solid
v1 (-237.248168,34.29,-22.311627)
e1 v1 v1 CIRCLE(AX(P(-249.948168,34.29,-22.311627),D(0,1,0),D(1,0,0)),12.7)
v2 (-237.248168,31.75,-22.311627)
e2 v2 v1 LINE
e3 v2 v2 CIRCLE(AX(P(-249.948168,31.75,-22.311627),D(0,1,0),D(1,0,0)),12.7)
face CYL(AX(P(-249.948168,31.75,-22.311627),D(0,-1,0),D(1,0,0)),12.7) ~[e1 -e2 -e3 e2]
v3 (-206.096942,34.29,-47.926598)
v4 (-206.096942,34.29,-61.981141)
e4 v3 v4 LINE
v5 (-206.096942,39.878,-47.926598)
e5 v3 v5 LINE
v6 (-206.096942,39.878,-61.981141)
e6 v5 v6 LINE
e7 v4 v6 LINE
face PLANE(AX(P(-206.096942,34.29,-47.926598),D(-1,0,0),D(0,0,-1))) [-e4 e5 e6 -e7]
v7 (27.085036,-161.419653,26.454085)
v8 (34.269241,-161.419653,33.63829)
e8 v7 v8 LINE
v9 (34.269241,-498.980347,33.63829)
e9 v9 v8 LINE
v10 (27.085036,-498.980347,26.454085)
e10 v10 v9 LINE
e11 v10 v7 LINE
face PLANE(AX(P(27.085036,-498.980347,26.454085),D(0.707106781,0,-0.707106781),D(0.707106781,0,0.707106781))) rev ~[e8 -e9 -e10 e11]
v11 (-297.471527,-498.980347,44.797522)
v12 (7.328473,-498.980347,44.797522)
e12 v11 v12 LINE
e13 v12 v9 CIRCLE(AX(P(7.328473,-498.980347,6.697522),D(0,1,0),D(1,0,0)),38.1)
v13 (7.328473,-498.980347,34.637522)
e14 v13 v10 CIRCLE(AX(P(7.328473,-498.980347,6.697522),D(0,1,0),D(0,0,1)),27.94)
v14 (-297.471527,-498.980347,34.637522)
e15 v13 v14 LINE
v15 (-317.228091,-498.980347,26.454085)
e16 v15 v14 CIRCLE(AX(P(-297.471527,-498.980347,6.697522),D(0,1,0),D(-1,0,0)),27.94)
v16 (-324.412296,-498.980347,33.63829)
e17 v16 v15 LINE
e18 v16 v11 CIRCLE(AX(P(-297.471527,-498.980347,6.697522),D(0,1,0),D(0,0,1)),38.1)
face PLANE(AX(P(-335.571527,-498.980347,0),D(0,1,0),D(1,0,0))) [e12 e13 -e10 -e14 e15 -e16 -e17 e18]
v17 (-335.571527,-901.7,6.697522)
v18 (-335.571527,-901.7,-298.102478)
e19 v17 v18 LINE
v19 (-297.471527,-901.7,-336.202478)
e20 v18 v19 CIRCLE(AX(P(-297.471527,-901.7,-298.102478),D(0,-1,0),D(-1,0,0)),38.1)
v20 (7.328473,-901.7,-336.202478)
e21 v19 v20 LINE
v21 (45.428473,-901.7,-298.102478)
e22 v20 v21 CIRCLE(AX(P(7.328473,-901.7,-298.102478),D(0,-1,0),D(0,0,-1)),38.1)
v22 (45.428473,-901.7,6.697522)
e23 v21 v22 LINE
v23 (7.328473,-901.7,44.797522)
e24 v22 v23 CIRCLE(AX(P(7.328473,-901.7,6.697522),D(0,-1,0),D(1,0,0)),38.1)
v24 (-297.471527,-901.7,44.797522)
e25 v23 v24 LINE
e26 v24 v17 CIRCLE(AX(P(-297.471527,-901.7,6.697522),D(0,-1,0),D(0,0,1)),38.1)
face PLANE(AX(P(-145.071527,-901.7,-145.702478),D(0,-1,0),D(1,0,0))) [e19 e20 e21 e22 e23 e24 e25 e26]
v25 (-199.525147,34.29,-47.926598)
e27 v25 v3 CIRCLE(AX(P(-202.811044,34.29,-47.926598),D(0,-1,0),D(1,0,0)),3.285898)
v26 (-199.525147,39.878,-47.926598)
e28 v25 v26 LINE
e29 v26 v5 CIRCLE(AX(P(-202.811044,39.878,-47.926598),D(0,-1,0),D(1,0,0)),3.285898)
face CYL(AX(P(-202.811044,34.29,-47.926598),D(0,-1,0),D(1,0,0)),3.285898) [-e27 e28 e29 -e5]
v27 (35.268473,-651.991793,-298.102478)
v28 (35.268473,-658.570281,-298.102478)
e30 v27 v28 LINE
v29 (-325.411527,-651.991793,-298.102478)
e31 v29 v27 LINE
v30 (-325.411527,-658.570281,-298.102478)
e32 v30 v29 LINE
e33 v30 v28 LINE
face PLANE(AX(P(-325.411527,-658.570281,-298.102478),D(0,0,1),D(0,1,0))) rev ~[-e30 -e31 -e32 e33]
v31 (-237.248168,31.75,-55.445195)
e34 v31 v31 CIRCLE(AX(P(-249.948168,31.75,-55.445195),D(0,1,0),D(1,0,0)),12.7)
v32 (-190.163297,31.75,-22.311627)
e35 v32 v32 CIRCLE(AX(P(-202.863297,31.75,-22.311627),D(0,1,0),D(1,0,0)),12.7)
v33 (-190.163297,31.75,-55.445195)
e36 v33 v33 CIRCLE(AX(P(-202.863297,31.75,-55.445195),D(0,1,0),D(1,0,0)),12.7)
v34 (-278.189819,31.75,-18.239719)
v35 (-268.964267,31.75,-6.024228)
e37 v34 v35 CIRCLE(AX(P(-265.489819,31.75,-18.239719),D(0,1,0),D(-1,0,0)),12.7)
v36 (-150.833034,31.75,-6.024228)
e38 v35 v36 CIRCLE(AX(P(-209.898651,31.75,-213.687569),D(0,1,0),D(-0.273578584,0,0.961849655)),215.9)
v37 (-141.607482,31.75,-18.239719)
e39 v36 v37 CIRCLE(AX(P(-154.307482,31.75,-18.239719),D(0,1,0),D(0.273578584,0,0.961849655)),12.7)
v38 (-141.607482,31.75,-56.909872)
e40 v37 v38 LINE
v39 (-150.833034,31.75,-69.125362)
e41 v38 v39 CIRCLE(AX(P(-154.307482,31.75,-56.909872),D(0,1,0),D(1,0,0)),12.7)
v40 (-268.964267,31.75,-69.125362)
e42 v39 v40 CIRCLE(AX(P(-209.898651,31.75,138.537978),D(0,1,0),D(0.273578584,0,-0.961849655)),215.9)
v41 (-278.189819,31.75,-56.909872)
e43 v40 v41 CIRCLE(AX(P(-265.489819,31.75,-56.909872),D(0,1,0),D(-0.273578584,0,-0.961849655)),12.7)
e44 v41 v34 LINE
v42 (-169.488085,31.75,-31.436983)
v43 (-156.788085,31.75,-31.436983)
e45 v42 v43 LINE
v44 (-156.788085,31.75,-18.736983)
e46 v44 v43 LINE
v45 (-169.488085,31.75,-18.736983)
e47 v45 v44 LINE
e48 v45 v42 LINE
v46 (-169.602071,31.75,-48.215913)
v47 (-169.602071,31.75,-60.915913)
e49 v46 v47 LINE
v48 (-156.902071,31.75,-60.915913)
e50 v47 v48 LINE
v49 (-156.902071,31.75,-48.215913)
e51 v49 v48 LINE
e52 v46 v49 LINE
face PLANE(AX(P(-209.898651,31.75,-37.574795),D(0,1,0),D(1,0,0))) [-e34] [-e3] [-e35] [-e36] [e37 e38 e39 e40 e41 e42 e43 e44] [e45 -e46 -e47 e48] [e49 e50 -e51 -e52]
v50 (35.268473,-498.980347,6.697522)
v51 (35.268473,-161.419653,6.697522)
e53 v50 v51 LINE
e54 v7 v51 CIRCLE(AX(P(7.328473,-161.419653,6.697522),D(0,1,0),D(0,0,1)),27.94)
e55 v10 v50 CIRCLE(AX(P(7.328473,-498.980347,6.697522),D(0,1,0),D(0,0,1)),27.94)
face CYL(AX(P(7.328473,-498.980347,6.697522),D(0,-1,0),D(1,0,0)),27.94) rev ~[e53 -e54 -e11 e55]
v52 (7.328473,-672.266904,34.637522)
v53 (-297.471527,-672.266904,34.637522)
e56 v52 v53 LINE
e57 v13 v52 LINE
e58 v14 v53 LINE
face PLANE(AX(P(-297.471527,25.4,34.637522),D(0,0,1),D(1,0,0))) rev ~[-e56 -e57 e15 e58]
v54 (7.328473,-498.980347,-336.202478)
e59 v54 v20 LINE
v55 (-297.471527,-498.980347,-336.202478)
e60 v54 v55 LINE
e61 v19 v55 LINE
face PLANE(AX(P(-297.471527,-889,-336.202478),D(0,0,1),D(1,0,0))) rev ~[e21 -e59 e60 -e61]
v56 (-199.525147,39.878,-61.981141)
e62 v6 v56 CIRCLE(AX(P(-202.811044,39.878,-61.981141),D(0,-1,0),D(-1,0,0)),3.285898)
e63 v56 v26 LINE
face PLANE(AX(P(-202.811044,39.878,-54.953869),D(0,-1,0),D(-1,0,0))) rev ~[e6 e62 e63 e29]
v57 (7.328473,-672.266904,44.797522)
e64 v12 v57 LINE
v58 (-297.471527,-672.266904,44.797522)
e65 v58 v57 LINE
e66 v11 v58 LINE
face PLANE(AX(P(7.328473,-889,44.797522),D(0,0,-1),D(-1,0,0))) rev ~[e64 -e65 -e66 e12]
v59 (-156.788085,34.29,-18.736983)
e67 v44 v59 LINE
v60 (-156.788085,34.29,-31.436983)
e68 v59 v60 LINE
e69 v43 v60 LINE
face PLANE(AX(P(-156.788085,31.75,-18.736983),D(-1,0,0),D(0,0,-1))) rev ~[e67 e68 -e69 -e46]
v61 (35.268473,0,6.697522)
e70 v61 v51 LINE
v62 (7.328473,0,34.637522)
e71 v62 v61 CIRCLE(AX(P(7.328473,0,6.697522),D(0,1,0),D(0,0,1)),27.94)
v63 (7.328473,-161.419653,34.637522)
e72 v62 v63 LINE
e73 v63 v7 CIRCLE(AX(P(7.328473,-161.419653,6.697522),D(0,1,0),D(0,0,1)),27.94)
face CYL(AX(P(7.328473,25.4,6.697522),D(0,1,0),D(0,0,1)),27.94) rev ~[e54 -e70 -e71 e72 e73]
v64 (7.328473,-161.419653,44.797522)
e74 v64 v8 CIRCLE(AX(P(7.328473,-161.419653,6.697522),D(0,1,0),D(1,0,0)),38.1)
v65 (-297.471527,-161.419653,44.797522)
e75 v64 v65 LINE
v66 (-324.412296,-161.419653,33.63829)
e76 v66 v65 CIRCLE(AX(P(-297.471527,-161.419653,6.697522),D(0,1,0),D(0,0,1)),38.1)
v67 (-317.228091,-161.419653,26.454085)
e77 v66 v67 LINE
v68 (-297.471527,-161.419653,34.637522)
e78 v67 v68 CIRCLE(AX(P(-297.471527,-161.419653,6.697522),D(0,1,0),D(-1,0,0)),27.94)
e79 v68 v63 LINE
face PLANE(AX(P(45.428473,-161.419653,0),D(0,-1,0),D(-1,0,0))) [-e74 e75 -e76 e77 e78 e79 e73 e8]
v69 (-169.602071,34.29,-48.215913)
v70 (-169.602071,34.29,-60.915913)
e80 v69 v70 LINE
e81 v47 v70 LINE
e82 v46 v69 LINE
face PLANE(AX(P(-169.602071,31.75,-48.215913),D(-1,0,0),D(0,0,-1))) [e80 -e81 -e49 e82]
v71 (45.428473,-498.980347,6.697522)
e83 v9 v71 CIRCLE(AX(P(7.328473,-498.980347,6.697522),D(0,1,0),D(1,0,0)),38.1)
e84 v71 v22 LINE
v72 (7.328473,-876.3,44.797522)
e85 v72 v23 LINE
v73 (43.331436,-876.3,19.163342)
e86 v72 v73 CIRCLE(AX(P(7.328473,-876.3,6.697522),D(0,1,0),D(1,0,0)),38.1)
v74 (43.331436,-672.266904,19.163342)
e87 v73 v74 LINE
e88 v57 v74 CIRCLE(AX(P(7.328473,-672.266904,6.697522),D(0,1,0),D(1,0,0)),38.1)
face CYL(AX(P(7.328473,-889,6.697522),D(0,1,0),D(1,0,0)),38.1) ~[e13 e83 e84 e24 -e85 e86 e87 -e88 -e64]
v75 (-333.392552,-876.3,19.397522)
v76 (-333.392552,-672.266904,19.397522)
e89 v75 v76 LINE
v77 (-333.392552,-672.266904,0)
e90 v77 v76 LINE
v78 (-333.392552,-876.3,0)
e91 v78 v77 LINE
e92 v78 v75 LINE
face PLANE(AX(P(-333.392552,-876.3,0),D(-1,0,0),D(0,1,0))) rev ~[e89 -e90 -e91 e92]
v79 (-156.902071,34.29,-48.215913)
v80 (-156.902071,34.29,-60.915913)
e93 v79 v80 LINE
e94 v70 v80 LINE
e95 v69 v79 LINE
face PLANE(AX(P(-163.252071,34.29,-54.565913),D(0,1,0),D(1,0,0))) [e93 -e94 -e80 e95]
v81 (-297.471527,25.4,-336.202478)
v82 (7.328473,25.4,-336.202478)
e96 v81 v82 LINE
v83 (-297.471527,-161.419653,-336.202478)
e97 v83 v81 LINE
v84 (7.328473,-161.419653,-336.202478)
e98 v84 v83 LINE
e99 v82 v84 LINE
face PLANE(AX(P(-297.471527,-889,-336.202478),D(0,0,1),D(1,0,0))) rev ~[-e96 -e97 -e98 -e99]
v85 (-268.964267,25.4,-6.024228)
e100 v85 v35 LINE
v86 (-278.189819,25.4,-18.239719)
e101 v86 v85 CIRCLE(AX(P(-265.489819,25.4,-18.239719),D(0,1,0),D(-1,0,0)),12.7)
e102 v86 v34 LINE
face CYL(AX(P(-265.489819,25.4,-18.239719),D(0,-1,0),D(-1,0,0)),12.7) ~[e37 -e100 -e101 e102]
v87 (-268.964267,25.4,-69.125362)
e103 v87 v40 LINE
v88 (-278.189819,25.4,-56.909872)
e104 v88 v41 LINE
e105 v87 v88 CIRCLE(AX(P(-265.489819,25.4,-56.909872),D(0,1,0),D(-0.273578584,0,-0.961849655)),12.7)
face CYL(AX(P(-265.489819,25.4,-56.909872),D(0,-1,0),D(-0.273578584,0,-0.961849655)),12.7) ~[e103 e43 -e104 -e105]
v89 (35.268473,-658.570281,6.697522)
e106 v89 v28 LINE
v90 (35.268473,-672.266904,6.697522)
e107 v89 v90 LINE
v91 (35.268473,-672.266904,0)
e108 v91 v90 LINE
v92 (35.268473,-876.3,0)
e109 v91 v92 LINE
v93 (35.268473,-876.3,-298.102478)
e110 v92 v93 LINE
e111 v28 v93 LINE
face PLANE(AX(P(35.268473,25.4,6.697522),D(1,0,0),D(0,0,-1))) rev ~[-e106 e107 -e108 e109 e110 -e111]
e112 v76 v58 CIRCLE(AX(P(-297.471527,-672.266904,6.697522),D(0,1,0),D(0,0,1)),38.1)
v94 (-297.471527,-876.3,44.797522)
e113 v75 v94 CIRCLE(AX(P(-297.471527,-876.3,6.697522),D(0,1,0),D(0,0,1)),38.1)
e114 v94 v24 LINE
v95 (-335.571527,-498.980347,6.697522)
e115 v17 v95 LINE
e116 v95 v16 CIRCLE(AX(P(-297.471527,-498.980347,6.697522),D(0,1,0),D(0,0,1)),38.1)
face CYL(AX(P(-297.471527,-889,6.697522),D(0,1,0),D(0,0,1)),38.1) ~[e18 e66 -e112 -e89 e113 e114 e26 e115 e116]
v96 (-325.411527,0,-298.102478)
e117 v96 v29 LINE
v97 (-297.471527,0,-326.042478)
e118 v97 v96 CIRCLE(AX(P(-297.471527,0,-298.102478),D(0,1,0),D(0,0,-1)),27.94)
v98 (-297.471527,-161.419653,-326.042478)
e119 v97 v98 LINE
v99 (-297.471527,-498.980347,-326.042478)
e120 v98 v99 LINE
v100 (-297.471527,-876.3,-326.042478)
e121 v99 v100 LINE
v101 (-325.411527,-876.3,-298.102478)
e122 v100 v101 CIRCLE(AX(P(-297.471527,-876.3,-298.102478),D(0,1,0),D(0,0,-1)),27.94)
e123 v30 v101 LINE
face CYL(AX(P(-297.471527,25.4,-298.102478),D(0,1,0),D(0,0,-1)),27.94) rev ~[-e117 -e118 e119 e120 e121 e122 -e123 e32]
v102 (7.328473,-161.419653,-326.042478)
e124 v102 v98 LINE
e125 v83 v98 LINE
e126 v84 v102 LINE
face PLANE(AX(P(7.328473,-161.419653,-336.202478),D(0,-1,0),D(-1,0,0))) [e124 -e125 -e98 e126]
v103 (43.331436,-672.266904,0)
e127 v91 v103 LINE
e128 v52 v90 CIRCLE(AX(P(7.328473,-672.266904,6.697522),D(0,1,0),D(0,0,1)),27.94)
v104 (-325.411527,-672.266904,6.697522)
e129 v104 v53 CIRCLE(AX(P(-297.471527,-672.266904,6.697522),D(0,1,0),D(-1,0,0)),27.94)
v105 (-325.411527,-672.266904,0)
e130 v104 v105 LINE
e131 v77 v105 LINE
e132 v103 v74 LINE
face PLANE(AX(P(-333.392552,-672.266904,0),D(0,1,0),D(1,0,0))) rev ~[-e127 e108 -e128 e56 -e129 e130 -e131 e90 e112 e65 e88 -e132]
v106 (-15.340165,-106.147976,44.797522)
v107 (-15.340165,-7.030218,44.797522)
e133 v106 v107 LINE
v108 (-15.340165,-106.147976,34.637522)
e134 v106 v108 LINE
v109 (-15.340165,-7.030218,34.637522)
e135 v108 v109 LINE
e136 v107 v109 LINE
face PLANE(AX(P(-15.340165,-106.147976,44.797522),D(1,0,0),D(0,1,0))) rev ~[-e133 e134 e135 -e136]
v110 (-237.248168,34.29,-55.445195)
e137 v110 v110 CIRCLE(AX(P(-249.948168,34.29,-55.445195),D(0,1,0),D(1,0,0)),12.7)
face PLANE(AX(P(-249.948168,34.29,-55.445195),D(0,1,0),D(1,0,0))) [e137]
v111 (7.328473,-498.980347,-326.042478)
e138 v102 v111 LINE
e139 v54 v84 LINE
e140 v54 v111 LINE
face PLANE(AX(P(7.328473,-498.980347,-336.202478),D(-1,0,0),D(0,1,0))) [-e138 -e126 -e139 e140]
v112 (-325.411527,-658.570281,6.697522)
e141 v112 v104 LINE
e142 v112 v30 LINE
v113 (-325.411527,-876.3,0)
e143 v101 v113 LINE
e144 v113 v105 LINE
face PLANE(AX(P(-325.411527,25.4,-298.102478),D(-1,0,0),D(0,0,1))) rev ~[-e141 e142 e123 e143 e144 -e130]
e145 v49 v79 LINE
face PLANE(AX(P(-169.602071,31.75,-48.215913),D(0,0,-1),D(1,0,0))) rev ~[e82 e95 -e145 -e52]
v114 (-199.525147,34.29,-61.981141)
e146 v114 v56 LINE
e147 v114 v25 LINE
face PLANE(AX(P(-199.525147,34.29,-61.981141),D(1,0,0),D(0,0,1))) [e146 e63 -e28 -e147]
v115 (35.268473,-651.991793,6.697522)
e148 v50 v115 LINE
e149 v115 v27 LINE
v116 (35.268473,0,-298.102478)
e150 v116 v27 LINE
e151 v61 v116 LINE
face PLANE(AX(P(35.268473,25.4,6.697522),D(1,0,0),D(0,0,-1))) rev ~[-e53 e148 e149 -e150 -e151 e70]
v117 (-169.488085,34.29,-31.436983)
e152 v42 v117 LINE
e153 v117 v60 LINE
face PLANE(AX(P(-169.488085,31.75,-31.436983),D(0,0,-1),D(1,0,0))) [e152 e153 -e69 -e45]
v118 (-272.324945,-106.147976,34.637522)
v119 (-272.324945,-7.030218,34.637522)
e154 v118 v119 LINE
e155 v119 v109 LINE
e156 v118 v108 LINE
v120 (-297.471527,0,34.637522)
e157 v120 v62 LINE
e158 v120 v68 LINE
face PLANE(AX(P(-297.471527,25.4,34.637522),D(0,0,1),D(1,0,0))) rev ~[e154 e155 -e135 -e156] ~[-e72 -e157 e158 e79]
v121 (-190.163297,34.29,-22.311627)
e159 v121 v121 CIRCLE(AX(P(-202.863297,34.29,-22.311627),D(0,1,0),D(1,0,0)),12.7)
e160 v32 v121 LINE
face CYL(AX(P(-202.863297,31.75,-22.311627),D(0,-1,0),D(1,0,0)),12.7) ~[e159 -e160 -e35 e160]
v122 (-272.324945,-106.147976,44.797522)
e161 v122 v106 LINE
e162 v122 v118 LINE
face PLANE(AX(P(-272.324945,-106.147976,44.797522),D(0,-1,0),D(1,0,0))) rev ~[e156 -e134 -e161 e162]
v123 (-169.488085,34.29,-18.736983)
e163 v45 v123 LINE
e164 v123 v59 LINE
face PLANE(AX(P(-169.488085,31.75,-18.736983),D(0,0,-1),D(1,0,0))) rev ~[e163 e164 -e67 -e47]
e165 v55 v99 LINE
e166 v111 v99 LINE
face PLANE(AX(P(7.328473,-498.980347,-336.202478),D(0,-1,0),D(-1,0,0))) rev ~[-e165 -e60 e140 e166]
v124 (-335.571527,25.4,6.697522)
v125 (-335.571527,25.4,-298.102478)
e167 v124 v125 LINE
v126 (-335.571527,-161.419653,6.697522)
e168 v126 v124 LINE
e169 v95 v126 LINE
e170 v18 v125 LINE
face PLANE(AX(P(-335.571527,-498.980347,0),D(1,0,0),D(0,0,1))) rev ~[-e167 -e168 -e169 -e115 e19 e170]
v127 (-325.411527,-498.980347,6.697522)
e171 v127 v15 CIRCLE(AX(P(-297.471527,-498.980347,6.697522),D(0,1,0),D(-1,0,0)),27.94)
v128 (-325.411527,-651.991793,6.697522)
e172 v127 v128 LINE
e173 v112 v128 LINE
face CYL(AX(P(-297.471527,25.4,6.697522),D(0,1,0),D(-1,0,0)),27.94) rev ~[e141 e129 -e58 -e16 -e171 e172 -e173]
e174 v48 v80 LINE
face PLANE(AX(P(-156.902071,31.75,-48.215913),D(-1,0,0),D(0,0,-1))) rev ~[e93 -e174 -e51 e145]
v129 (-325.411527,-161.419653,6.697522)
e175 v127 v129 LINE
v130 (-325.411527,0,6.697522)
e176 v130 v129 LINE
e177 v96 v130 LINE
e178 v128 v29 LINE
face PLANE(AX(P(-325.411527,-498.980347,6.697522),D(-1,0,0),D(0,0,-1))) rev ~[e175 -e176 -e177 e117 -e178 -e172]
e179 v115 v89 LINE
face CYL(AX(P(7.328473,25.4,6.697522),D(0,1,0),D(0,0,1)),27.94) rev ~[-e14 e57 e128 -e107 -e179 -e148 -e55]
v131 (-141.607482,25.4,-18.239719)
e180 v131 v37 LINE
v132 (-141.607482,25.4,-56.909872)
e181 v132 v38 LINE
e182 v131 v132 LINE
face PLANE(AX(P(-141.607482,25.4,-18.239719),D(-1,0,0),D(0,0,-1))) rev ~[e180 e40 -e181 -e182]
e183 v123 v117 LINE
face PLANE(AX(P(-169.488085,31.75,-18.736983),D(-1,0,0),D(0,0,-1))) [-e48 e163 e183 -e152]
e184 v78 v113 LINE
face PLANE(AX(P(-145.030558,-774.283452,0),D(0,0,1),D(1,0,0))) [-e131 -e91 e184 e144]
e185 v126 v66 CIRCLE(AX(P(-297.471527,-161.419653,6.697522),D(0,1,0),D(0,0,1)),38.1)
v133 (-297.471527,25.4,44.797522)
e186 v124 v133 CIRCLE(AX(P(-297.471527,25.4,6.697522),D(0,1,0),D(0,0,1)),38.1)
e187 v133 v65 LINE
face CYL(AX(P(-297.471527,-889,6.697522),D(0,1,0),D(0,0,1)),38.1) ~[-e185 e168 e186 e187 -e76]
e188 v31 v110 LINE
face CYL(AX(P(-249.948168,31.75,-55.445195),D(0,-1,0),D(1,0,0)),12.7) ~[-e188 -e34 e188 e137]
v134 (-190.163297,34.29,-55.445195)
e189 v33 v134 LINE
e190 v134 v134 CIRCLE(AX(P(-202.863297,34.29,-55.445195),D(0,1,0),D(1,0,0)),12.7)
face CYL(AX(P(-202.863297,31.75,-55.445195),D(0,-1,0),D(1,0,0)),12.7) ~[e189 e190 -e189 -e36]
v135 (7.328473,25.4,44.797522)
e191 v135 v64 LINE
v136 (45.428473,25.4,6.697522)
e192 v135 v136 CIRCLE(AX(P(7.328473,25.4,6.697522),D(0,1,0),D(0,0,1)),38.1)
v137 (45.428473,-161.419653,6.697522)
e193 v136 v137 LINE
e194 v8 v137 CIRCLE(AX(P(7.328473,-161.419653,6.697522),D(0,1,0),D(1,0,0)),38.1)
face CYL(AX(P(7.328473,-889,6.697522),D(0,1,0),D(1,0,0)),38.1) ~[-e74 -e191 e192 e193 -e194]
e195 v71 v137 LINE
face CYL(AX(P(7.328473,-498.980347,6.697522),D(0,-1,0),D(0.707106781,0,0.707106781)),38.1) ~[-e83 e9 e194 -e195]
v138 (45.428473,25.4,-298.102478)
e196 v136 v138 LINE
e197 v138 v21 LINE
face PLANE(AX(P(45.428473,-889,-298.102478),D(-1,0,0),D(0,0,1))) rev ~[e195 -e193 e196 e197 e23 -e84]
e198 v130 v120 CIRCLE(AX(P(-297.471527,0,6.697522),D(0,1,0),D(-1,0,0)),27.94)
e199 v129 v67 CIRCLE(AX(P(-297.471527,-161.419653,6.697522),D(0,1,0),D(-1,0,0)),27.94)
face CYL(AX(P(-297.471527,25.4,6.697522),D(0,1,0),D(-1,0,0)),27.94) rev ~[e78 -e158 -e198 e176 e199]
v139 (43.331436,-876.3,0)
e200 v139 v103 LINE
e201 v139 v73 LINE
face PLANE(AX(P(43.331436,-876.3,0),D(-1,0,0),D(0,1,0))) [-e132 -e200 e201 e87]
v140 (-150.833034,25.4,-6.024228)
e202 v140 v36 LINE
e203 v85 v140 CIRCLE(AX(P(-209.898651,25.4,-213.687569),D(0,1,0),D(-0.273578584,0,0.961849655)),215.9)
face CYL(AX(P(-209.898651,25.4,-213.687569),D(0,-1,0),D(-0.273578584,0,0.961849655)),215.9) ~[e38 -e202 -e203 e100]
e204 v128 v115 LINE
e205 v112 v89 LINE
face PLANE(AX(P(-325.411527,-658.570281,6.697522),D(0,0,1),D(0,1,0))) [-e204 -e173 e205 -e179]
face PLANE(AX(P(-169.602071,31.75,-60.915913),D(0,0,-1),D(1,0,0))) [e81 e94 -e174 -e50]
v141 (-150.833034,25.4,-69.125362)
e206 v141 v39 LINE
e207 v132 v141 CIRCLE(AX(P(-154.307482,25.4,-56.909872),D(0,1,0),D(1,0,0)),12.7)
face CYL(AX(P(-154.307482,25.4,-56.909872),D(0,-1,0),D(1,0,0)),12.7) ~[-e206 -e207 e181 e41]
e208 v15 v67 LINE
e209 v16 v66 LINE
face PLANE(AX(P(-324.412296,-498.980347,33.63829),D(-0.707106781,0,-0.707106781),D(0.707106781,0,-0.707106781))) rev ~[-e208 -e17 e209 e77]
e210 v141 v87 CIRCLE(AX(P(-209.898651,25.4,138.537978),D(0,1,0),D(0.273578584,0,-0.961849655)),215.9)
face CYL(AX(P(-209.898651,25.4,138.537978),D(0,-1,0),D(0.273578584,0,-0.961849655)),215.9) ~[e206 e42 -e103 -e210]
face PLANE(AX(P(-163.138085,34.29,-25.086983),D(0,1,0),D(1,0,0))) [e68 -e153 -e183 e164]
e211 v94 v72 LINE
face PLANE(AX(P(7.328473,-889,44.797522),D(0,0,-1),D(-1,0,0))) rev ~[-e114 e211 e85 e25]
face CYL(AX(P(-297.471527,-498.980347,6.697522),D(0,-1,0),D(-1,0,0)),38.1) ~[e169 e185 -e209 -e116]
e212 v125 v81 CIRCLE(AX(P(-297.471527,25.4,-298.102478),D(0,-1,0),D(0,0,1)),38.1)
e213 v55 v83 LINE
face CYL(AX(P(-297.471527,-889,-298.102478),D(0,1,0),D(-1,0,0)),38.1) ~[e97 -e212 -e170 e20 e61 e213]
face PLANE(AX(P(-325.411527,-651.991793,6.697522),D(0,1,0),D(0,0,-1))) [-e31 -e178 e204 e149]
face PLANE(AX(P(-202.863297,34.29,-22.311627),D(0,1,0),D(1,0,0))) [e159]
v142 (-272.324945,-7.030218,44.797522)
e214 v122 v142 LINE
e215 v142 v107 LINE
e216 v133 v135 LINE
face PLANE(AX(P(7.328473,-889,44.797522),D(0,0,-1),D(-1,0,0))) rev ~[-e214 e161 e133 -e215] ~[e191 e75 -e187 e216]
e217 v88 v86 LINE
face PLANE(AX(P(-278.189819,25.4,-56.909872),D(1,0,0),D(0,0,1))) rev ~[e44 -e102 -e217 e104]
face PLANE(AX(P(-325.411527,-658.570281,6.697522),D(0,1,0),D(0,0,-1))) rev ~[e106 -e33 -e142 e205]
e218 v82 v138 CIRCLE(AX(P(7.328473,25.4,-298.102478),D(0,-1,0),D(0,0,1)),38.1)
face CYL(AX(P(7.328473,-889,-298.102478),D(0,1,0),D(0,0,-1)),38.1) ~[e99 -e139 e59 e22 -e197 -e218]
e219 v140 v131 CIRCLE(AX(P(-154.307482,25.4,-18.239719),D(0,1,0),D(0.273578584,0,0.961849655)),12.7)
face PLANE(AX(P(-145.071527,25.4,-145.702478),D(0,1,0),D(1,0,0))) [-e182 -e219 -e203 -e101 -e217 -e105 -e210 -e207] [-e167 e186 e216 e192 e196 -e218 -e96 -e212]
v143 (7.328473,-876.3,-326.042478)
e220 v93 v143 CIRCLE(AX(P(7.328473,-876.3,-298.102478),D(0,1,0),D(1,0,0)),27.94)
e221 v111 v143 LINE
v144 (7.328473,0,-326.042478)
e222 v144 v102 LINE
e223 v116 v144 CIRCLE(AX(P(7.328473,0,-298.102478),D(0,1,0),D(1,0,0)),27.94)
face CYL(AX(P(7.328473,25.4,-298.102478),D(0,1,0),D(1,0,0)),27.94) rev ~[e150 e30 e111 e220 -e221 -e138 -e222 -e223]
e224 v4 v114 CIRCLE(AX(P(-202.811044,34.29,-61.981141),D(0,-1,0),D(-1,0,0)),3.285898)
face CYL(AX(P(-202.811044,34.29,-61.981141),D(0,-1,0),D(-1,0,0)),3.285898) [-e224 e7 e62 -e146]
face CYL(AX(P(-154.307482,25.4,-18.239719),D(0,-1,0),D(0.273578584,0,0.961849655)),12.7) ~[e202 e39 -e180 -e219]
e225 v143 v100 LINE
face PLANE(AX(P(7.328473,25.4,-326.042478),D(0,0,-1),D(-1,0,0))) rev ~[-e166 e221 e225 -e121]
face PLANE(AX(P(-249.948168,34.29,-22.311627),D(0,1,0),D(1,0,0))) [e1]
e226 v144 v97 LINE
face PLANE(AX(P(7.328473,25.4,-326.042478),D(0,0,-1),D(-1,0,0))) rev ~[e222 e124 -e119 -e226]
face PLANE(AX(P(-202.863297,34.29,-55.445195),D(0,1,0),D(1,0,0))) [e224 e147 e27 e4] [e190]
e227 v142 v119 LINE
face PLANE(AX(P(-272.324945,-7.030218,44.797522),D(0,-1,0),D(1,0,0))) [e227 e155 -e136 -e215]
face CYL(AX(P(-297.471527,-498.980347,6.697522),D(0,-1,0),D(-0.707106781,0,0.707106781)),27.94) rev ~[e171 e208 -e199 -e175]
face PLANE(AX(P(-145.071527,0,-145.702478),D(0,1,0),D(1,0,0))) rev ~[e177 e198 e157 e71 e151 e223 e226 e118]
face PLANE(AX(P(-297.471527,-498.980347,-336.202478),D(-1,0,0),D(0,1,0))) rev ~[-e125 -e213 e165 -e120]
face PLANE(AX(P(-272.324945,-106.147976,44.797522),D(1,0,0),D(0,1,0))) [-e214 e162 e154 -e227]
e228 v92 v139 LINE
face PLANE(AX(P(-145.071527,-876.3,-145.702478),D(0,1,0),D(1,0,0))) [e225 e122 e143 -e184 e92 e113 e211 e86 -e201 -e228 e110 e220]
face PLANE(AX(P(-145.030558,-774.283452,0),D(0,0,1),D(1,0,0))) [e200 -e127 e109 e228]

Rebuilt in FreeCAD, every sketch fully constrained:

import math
import FreeCAD as App
import Part
import Sketcher
Q = App.Units.Quantity


def edges_at(feature, points):
    """Names of the edges that pass closest to the given points."""
    edges = feature.Shape.Edges
    near = lambda p: min(range(len(edges)), key=lambda i: edges[i].distToShape(Part.Vertex(*p))[0])
    return sorted({f"Edge{near(p) + 1}" for p in points})


def add_polygon(sketch, points):
    """Adds a closed chain of lines whose ends are joined by coincident constraints."""
    first, n = sketch.GeometryCount, len(points)
    for a, b in zip(points, points[1:] + points[:1]):
        sketch.addGeometry(Part.LineSegment(App.Vector(*a, 0), App.Vector(*b, 0)), False)
    for i in range(n):
        sketch.addConstraint(Sketcher.Constraint("Coincident", first + i, 2, first + (i + 1) % n, 1))

doc = App.newDocument("Part")
body = doc.addObject("PartDesign::Body", "Body")

# Sketch on XZ plane
sketch1 = doc.addObject("Sketcher::SketchObject", "Sketch")
body.addObject(sketch1)
sketch1.AttachmentSupport = (doc.XZ_Plane, [""])
sketch1.MapMode = "FlatFace"
add_polygon(sketch1, [(-336, -336), (-336, 45), (45, 45), (45, -336)])  # lines 0-3
sketch1.addConstraint(Sketcher.Constraint("Vertical", 0))
sketch1.addConstraint(Sketcher.Constraint("Horizontal", 1))
sketch1.addConstraint(Sketcher.Constraint("Vertical", 2))
sketch1.addConstraint(Sketcher.Constraint("Horizontal", 3))
sketch1.addConstraint(Sketcher.Constraint("Equal", 3, 0))
sketch1.addConstraint(Sketcher.Constraint("DistanceX", 1, 1, 1, 2, Q("15 in")))
sketch1.addConstraint(Sketcher.Constraint("DistanceY", -1, 1, 0, 2, Q("44.797522 mm")))
sketch1.addConstraint(Sketcher.Constraint("DistanceX", 0, 2, -1, 1, Q("335.571527 mm")))
pad1 = doc.addObject("PartDesign::Pad", "Pad")
body.addObject(pad1)
pad1.Profile = sketch1
pad1.Length = Q("1 in")
pad1.Reversed = True

# Sketch on XZ plane
sketch2 = doc.addObject("Sketcher::SketchObject", "Sketch001")
body.addObject(sketch2)
sketch2.AttachmentSupport = (doc.XZ_Plane, [""])
sketch2.MapMode = "FlatFace"
sketch2.AttachmentOffset = App.Placement(App.Vector(0, 0, -1 * 25.4), App.Rotation())
sketch2.addGeometry(Part.LineSegment(App.Vector(-278, -57, 0), App.Vector(-278, -18, 0)), False)
sketch2.addGeometry(Part.ArcOfCircle(Part.Circle(App.Vector(-265, -18, 0), App.Vector(0, 0, 1), 13), math.radians(106), math.radians(180)), False)
sketch2.addGeometry(Part.ArcOfCircle(Part.Circle(App.Vector(-210, -214, 0), App.Vector(0, 0, 1), 216), math.radians(74), math.radians(106)), False)
sketch2.addGeometry(Part.ArcOfCircle(Part.Circle(App.Vector(-154, -18, 0), App.Vector(0, 0, 1), 13), math.radians(0), math.radians(74)), False)
sketch2.addGeometry(Part.LineSegment(App.Vector(-142, -18, 0), App.Vector(-142, -57, 0)), False)
sketch2.addGeometry(Part.ArcOfCircle(Part.Circle(App.Vector(-154, -57, 0), App.Vector(0, 0, 1), 13), math.radians(-74), math.radians(0)), False)
sketch2.addGeometry(Part.ArcOfCircle(Part.Circle(App.Vector(-210, 139, 0), App.Vector(0, 0, 1), 216), math.radians(-106), math.radians(-74)), False)
sketch2.addGeometry(Part.ArcOfCircle(Part.Circle(App.Vector(-265, -57, 0), App.Vector(0, 0, 1), 13), math.radians(-180), math.radians(-106)), False)
sketch2.addConstraint(Sketcher.Constraint("Tangent", 0, 2, 1, 2))
sketch2.addConstraint(Sketcher.Constraint("Tangent", 1, 1, 2, 2))
sketch2.addConstraint(Sketcher.Constraint("Tangent", 2, 1, 3, 2))
sketch2.addConstraint(Sketcher.Constraint("Tangent", 3, 1, 4, 1))
sketch2.addConstraint(Sketcher.Constraint("Tangent", 4, 2, 5, 2))
sketch2.addConstraint(Sketcher.Constraint("Tangent", 5, 1, 6, 2))
sketch2.addConstraint(Sketcher.Constraint("Tangent", 6, 1, 7, 2))
sketch2.addConstraint(Sketcher.Constraint("Tangent", 7, 1, 0, 1))
sketch2.addConstraint(Sketcher.Constraint("Vertical", 0))
sketch2.addConstraint(Sketcher.Constraint("Vertical", 4))
sketch2.addConstraint(Sketcher.Constraint("Equal", 1, 3))
sketch2.addConstraint(Sketcher.Constraint("Equal", 3, 5))
sketch2.addConstraint(Sketcher.Constraint("Equal", 2, 6))
sketch2.addConstraint(Sketcher.Constraint("Equal", 5, 7))
sketch2.addConstraint(Sketcher.Constraint("Horizontal", 1, 3, 3, 3))
sketch2.addConstraint(Sketcher.Constraint("Horizontal", 5, 3, 7, 3))
sketch2.addConstraint(Sketcher.Constraint("Radius", 1, Q("0.5 in")))
sketch2.addConstraint(Sketcher.Constraint("Radius", 2, Q("8.5 in")))
sketch2.addConstraint(Sketcher.Constraint("DistanceY", 0, 1, 0, 2, Q("38.670153 mm")))
sketch2.addConstraint(Sketcher.Constraint("DistanceX", 1, 3, -1, 1, Q("265.489819 mm")))
sketch2.addConstraint(Sketcher.Constraint("DistanceY", 1, 3, -1, 1, Q("18.239719 mm")))
sketch2.addConstraint(Sketcher.Constraint("DistanceX", 2, 3, -1, 1, Q("209.898651 mm")))
pad2 = doc.addObject("PartDesign::Pad", "Pad001")
body.addObject(pad2)
pad2.Profile = sketch2
pad2.Length = Q("0.25 in")
pad2.Reversed = True

# Sketch on XZ plane
sketch3 = doc.addObject("Sketcher::SketchObject", "Sketch002")
body.addObject(sketch3)
sketch3.AttachmentSupport = (doc.XZ_Plane, [""])
sketch3.MapMode = "FlatFace"
sketch3.AttachmentOffset = App.Placement(App.Vector(0, 0, -1.25 * 25.4), App.Rotation())
sketch3.addGeometry(Part.Circle(App.Vector(-250, -55, 0), App.Vector(0, 0, 1), 13), False)  # 0
sketch3.addGeometry(Part.Circle(App.Vector(-250, -22, 0), App.Vector(0, 0, 1), 13), False)  # 1
sketch3.addGeometry(Part.Circle(App.Vector(-203, -55, 0), App.Vector(0, 0, 1), 13), False)  # 2
sketch3.addGeometry(Part.Circle(App.Vector(-203, -22, 0), App.Vector(0, 0, 1), 13), False)  # 3
add_polygon(sketch3, [(-170, -61), (-170, -48), (-157, -48), (-157, -61)])  # lines 4-7
add_polygon(sketch3, [(-169, -31), (-169, -19), (-157, -19), (-157, -31)])  # lines 8-11
sketch3.addConstraint(Sketcher.Constraint("Vertical", 4))
sketch3.addConstraint(Sketcher.Constraint("Horizontal", 5))
sketch3.addConstraint(Sketcher.Constraint("Vertical", 6))
sketch3.addConstraint(Sketcher.Constraint("Horizontal", 7))
sketch3.addConstraint(Sketcher.Constraint("Vertical", 8))
sketch3.addConstraint(Sketcher.Constraint("Horizontal", 9))
sketch3.addConstraint(Sketcher.Constraint("Vertical", 10))
sketch3.addConstraint(Sketcher.Constraint("Horizontal", 11))
sketch3.addConstraint(Sketcher.Constraint("Equal", 0, 1))
sketch3.addConstraint(Sketcher.Constraint("Equal", 1, 2))
sketch3.addConstraint(Sketcher.Constraint("Equal", 2, 3))
sketch3.addConstraint(Sketcher.Constraint("Horizontal", 0, 3, 2, 3))
sketch3.addConstraint(Sketcher.Constraint("Horizontal", 1, 3, 3, 3))
sketch3.addConstraint(Sketcher.Constraint("Vertical", 0, 3, 1, 3))
sketch3.addConstraint(Sketcher.Constraint("Vertical", 2, 3, 3, 3))
sketch3.addConstraint(Sketcher.Constraint("Equal", 7, 9))
sketch3.addConstraint(Sketcher.Constraint("Equal", 11, 4))
sketch3.addConstraint(Sketcher.Constraint("Equal", 6, 8))
sketch3.addConstraint(Sketcher.Constraint("Diameter", 0, Q("1 in")))
sketch3.addConstraint(Sketcher.Constraint("DistanceX", 5, 1, 5, 2, Q("0.5 in")))
sketch3.addConstraint(Sketcher.Constraint("DistanceX", 0, 3, -1, 1, Q("249.948168 mm")))
sketch3.addConstraint(Sketcher.Constraint("DistanceX", 4, 2, -1, 1, Q("169.602071 mm")))
sketch3.addConstraint(Sketcher.Constraint("DistanceY", 0, 3, 1, 3, Q("33.133568 mm")))
sketch3.addConstraint(Sketcher.Constraint("DistanceX", 0, 3, 2, 3, Q("47.084871 mm")))
sketch3.addConstraint(Sketcher.Constraint("DistanceY", 2, 3, 4, 2, Q("7.229281 mm")))
sketch3.addConstraint(Sketcher.Constraint("DistanceY", 4, 2, 8, 2, Q("29.47893 mm")))
sketch3.addConstraint(Sketcher.Constraint("DistanceX", 3, 3, 8, 2, Q("33.375212 mm")))
sketch3.addConstraint(Sketcher.Constraint("DistanceY", 0, 3, -1, 1, Q("55.445195 mm")))
pad3 = doc.addObject("PartDesign::Pad", "Pad002")
body.addObject(pad3)
pad3.Profile = sketch3
pad3.Length = Q("0.1 in")
pad3.Reversed = True
doc.recompute()

fillet = doc.addObject("PartDesign::Fillet", "Fillet")
body.addObject(fillet)
fillet.Base = (pad3, edges_at(pad3, [
    (-335.572, 12.7, -336.202),
    (45.428, 12.7, -336.202),
    (45.428, 12.7, 44.798),
    (-335.572, 12.7, 44.798),
]))
fillet.Radius = Q("1.5 in")

# Sketch on XZ plane
sketch4 = doc.addObject("Sketcher::SketchObject", "Sketch003")
body.addObject(sketch4)
sketch4.AttachmentSupport = (doc.XZ_Plane, [""])
sketch4.MapMode = "FlatFace"
sketch4.AttachmentOffset = App.Placement(App.Vector(0, 0, -1 * 25.4), App.Rotation())
sketch4.addGeometry(Part.LineSegment(App.Vector(-336, -298, 0), App.Vector(-336, 7, 0)), False)
sketch4.addGeometry(Part.ArcOfCircle(Part.Circle(App.Vector(-297, 7, 0), App.Vector(0, 0, 1), 38), math.radians(90), math.radians(180)), False)
sketch4.addGeometry(Part.LineSegment(App.Vector(-297, 45, 0), App.Vector(7, 45, 0)), False)
sketch4.addGeometry(Part.ArcOfCircle(Part.Circle(App.Vector(7, 7, 0), App.Vector(0, 0, 1), 38), math.radians(0), math.radians(90)), False)
sketch4.addGeometry(Part.LineSegment(App.Vector(45, 7, 0), App.Vector(45, -298, 0)), False)
sketch4.addGeometry(Part.ArcOfCircle(Part.Circle(App.Vector(7, -298, 0), App.Vector(0, 0, 1), 38), math.radians(-90), math.radians(0)), False)
sketch4.addGeometry(Part.LineSegment(App.Vector(7, -336, 0), App.Vector(-297, -336, 0)), False)
sketch4.addGeometry(Part.ArcOfCircle(Part.Circle(App.Vector(-297, -298, 0), App.Vector(0, 0, 1), 38), math.radians(-180), math.radians(-90)), False)
sketch4.addGeometry(Part.LineSegment(App.Vector(-297, -326, 0), App.Vector(7, -326, 0)), False)
sketch4.addGeometry(Part.ArcOfCircle(Part.Circle(App.Vector(7, -298, 0), App.Vector(0, 0, 1), 28), math.radians(-90), math.radians(0)), False)
sketch4.addGeometry(Part.LineSegment(App.Vector(35, -298, 0), App.Vector(35, 7, 0)), False)
sketch4.addGeometry(Part.ArcOfCircle(Part.Circle(App.Vector(7, 7, 0), App.Vector(0, 0, 1), 28), math.radians(0), math.radians(90)), False)
sketch4.addGeometry(Part.LineSegment(App.Vector(7, 35, 0), App.Vector(-297, 35, 0)), False)
sketch4.addGeometry(Part.ArcOfCircle(Part.Circle(App.Vector(-297, 7, 0), App.Vector(0, 0, 1), 28), math.radians(90), math.radians(180)), False)
sketch4.addGeometry(Part.LineSegment(App.Vector(-325, 7, 0), App.Vector(-325, -298, 0)), False)
sketch4.addGeometry(Part.ArcOfCircle(Part.Circle(App.Vector(-297, -298, 0), App.Vector(0, 0, 1), 28), math.radians(180), math.radians(270)), False)
sketch4.addConstraint(Sketcher.Constraint("Tangent", 0, 2, 1, 2))
sketch4.addConstraint(Sketcher.Constraint("Tangent", 1, 1, 2, 1))
sketch4.addConstraint(Sketcher.Constraint("Tangent", 2, 2, 3, 2))
sketch4.addConstraint(Sketcher.Constraint("Tangent", 3, 1, 4, 1))
sketch4.addConstraint(Sketcher.Constraint("Tangent", 4, 2, 5, 2))
sketch4.addConstraint(Sketcher.Constraint("Tangent", 5, 1, 6, 1))
sketch4.addConstraint(Sketcher.Constraint("Tangent", 6, 2, 7, 2))
sketch4.addConstraint(Sketcher.Constraint("Tangent", 7, 1, 0, 1))
sketch4.addConstraint(Sketcher.Constraint("Tangent", 8, 2, 9, 1))
sketch4.addConstraint(Sketcher.Constraint("Tangent", 9, 2, 10, 1))
sketch4.addConstraint(Sketcher.Constraint("Tangent", 10, 2, 11, 1))
sketch4.addConstraint(Sketcher.Constraint("Tangent", 11, 2, 12, 1))
sketch4.addConstraint(Sketcher.Constraint("Tangent", 12, 2, 13, 1))
sketch4.addConstraint(Sketcher.Constraint("Tangent", 13, 2, 14, 1))
sketch4.addConstraint(Sketcher.Constraint("Tangent", 14, 2, 15, 1))
sketch4.addConstraint(Sketcher.Constraint("Tangent", 15, 2, 8, 1))
sketch4.addConstraint(Sketcher.Constraint("Vertical", 0))
sketch4.addConstraint(Sketcher.Constraint("Horizontal", 2))
sketch4.addConstraint(Sketcher.Constraint("Vertical", 4))
sketch4.addConstraint(Sketcher.Constraint("Horizontal", 6))
sketch4.addConstraint(Sketcher.Constraint("Horizontal", 8))
sketch4.addConstraint(Sketcher.Constraint("Vertical", 10))
sketch4.addConstraint(Sketcher.Constraint("Horizontal", 12))
sketch4.addConstraint(Sketcher.Constraint("Vertical", 14))
sketch4.addConstraint(Sketcher.Constraint("Coincident", 9, 3, 5, 3))
sketch4.addConstraint(Sketcher.Constraint("Coincident", 11, 3, 3, 3))
sketch4.addConstraint(Sketcher.Constraint("Coincident", 13, 3, 1, 3))
sketch4.addConstraint(Sketcher.Constraint("Equal", 1, 3))
sketch4.addConstraint(Sketcher.Constraint("Equal", 3, 5))
sketch4.addConstraint(Sketcher.Constraint("Equal", 5, 7))
sketch4.addConstraint(Sketcher.Constraint("Equal", 13, 15))
sketch4.addConstraint(Sketcher.Constraint("Equal", 12, 0))
sketch4.addConstraint(Sketcher.Constraint("Radius", 1, Q("1.5 in")))
sketch4.addConstraint(Sketcher.Constraint("Radius", 9, Q("1.1 in")))
sketch4.addConstraint(Sketcher.Constraint("DistanceX", 2, 1, 2, 2, Q("12 in")))
sketch4.addConstraint(Sketcher.Constraint("DistanceY", -1, 1, 1, 3, Q("6.697522 mm")))
sketch4.addConstraint(Sketcher.Constraint("DistanceX", 1, 3, -1, 1, Q("297.471527 mm")))
pad4 = doc.addObject("PartDesign::Pad", "Pad003")
body.addObject(pad4)
pad4.Profile = sketch4
pad4.Length = Q("36 in")

# Sketch on XZ plane
sketch5 = doc.addObject("Sketcher::SketchObject", "Sketch004")
body.addObject(sketch5)
sketch5.AttachmentSupport = (doc.XZ_Plane, [""])
sketch5.MapMode = "FlatFace"
sketch5.AttachmentOffset = App.Placement(App.Vector(0, 0, 35 * 25.4), App.Rotation())
sketch5.addGeometry(Part.LineSegment(App.Vector(-297, -336, 0), App.Vector(7, -336, 0)), False)
sketch5.addGeometry(Part.ArcOfCircle(Part.Circle(App.Vector(7, -298, 0), App.Vector(0, 0, 1), 38), math.radians(-90), math.radians(0)), False)
sketch5.addGeometry(Part.LineSegment(App.Vector(45, -298, 0), App.Vector(45, 7, 0)), False)
sketch5.addGeometry(Part.ArcOfCircle(Part.Circle(App.Vector(7, 7, 0), App.Vector(0, 0, 1), 38), math.radians(0), math.radians(90)), False)
sketch5.addGeometry(Part.LineSegment(App.Vector(7, 45, 0), App.Vector(-297, 45, 0)), False)
sketch5.addGeometry(Part.ArcOfCircle(Part.Circle(App.Vector(-297, 7, 0), App.Vector(0, 0, 1), 38), math.radians(90), math.radians(180)), False)
sketch5.addGeometry(Part.LineSegment(App.Vector(-336, 7, 0), App.Vector(-336, -298, 0)), False)
sketch5.addGeometry(Part.ArcOfCircle(Part.Circle(App.Vector(-297, -298, 0), App.Vector(0, 0, 1), 38), math.radians(-180), math.radians(-90)), False)
sketch5.addConstraint(Sketcher.Constraint("Tangent", 0, 2, 1, 1))
sketch5.addConstraint(Sketcher.Constraint("Tangent", 1, 2, 2, 1))
sketch5.addConstraint(Sketcher.Constraint("Tangent", 2, 2, 3, 1))
sketch5.addConstraint(Sketcher.Constraint("Tangent", 3, 2, 4, 1))
sketch5.addConstraint(Sketcher.Constraint("Tangent", 4, 2, 5, 1))
sketch5.addConstraint(Sketcher.Constraint("Tangent", 5, 2, 6, 1))
sketch5.addConstraint(Sketcher.Constraint("Tangent", 6, 2, 7, 1))
sketch5.addConstraint(Sketcher.Constraint("Tangent", 7, 2, 0, 1))
sketch5.addConstraint(Sketcher.Constraint("Horizontal", 0))
sketch5.addConstraint(Sketcher.Constraint("Vertical", 2))
sketch5.addConstraint(Sketcher.Constraint("Horizontal", 4))
sketch5.addConstraint(Sketcher.Constraint("Vertical", 6))
sketch5.addConstraint(Sketcher.Constraint("Equal", 1, 3))
sketch5.addConstraint(Sketcher.Constraint("Equal", 3, 5))
sketch5.addConstraint(Sketcher.Constraint("Equal", 5, 7))
sketch5.addConstraint(Sketcher.Constraint("Equal", 4, 2))
sketch5.addConstraint(Sketcher.Constraint("Radius", 1, Q("1.5 in")))
sketch5.addConstraint(Sketcher.Constraint("DistanceX", 0, 1, 0, 2, Q("12 in")))
sketch5.addConstraint(Sketcher.Constraint("DistanceY", 1, 3, -1, 1, Q("298.102478 mm")))
sketch5.addConstraint(Sketcher.Constraint("DistanceX", -1, 1, 1, 3, Q("7.328473 mm")))
pad5 = doc.addObject("PartDesign::Pad", "Pad004")
body.addObject(pad5)
pad5.Profile = sketch5
pad5.Length = Q("0.5 in")

# Sketch on XY plane
sketch6 = doc.addObject("Sketcher::SketchObject", "Sketch005")
body.addObject(sketch6)
sketch6.AttachmentSupport = (doc.XY_Plane, [""])
sketch6.MapMode = "FlatFace"
add_polygon(sketch6, [(45, -161), (-336, -161), (-336, -499), (45, -499)])  # lines 0-3
sketch6.addConstraint(Sketcher.Constraint("Horizontal", 0))
sketch6.addConstraint(Sketcher.Constraint("Vertical", 1))
sketch6.addConstraint(Sketcher.Constraint("Horizontal", 2))
sketch6.addConstraint(Sketcher.Constraint("Vertical", 3))
sketch6.addConstraint(Sketcher.Constraint("DistanceX", 0, 2, 0, 1, Q("15 in")))
sketch6.addConstraint(Sketcher.Constraint("DistanceY", 1, 2, 1, 1, Q("337.560694 mm")))
sketch6.addConstraint(Sketcher.Constraint("DistanceX", 0, 2, -1, 1, Q("335.571527 mm")))
sketch6.addConstraint(Sketcher.Constraint("DistanceY", 0, 2, -1, 1, Q("161.419653 mm")))
pocket1 = doc.addObject("PartDesign::Pocket", "Pocket")
body.addObject(pocket1)
pocket1.Profile = sketch6
pocket1.Length = Q("6.61 in")
pocket1.Reversed = True

# Sketch on XY plane
sketch7 = doc.addObject("Sketcher::SketchObject", "Sketch006")
body.addObject(sketch7)
sketch7.AttachmentSupport = (doc.XY_Plane, [""])
sketch7.MapMode = "FlatFace"
sketch7.AttachmentOffset = App.Placement(App.Vector(0, 0, -336.202478), App.Rotation())
add_polygon(sketch7, [(7, -161), (7, -499), (-297, -499), (-297, -161)])  # lines 0-3
sketch7.addConstraint(Sketcher.Constraint("Vertical", 0))
sketch7.addConstraint(Sketcher.Constraint("Horizontal", 1))
sketch7.addConstraint(Sketcher.Constraint("Vertical", 2))
sketch7.addConstraint(Sketcher.Constraint("Horizontal", 3))
sketch7.addConstraint(Sketcher.Constraint("DistanceX", 1, 2, 1, 1, Q("12 in")))
sketch7.addConstraint(Sketcher.Constraint("DistanceY", 0, 2, 0, 1, Q("337.560694 mm")))
sketch7.addConstraint(Sketcher.Constraint("DistanceX", -1, 1, 0, 2, Q("7.328473 mm")))
sketch7.addConstraint(Sketcher.Constraint("DistanceY", 0, 2, -1, 1, Q("498.980347 mm")))
pocket2 = doc.addObject("PartDesign::Pocket", "Pocket001")
body.addObject(pocket2)
pocket2.Profile = sketch7
pocket2.Length = Q("4.37 in")
pocket2.Reversed = True

# Sketch on XY plane
sketch8 = doc.addObject("Sketcher::SketchObject", "Sketch007")
body.addObject(sketch8)
sketch8.AttachmentSupport = (doc.XY_Plane, [""])
sketch8.MapMode = "FlatFace"
add_polygon(sketch8, [(-333, -672), (-333, -876), (43, -876), (43, -672)])  # lines 0-3
sketch8.addConstraint(Sketcher.Constraint("Vertical", 0))
sketch8.addConstraint(Sketcher.Constraint("Horizontal", 1))
sketch8.addConstraint(Sketcher.Constraint("Vertical", 2))
sketch8.addConstraint(Sketcher.Constraint("Horizontal", 3))
sketch8.addConstraint(Sketcher.Constraint("DistanceY", 0, 2, -1, 1, Q("34.5 in")))
sketch8.addConstraint(Sketcher.Constraint("DistanceX", 1, 1, 1, 2, Q("376.723987 mm")))
sketch8.addConstraint(Sketcher.Constraint("DistanceY", 0, 2, 0, 1, Q("204.033096 mm")))
sketch8.addConstraint(Sketcher.Constraint("DistanceX", 0, 2, -1, 1, Q("333.392552 mm")))
pocket3 = doc.addObject("PartDesign::Pocket", "Pocket002")
body.addObject(pocket3)
pocket3.Profile = sketch8
pocket3.Length = 672.066
pocket3.Reversed = True

# Sketch on XZ plane
sketch9 = doc.addObject("Sketcher::SketchObject", "Sketch008")
body.addObject(sketch9)
sketch9.AttachmentSupport = (doc.XZ_Plane, [""])
sketch9.MapMode = "FlatFace"
sketch9.AttachmentOffset = App.Placement(App.Vector(0, 0, 35 * 25.4), App.Rotation())
sketch9.addGeometry(Part.LineSegment(App.Vector(35, 7, 0), App.Vector(35, -298, 0)), False)
sketch9.addGeometry(Part.ArcOfCircle(Part.Circle(App.Vector(7, -298, 0), App.Vector(0, 0, 1), 28), math.radians(-90), math.radians(0)), False)
sketch9.addGeometry(Part.LineSegment(App.Vector(7, -326, 0), App.Vector(-297, -326, 0)), False)
sketch9.addGeometry(Part.ArcOfCircle(Part.Circle(App.Vector(-297, -298, 0), App.Vector(0, 0, 1), 28), math.radians(180), math.radians(270)), False)
sketch9.addGeometry(Part.LineSegment(App.Vector(-325, -298, 0), App.Vector(-325, 7, 0)), False)
sketch9.addGeometry(Part.ArcOfCircle(Part.Circle(App.Vector(-297, 7, 0), App.Vector(0, 0, 1), 28), math.radians(90), math.radians(180)), False)
sketch9.addGeometry(Part.LineSegment(App.Vector(-297, 35, 0), App.Vector(7, 35, 0)), False)
sketch9.addGeometry(Part.ArcOfCircle(Part.Circle(App.Vector(7, 7, 0), App.Vector(0, 0, 1), 28), math.radians(0), math.radians(90)), False)
sketch9.addConstraint(Sketcher.Constraint("Tangent", 0, 2, 1, 2))
sketch9.addConstraint(Sketcher.Constraint("Tangent", 1, 1, 2, 1))
sketch9.addConstraint(Sketcher.Constraint("Tangent", 2, 2, 3, 2))
sketch9.addConstraint(Sketcher.Constraint("Tangent", 3, 1, 4, 1))
sketch9.addConstraint(Sketcher.Constraint("Tangent", 4, 2, 5, 2))
sketch9.addConstraint(Sketcher.Constraint("Tangent", 5, 1, 6, 1))
sketch9.addConstraint(Sketcher.Constraint("Tangent", 6, 2, 7, 2))
sketch9.addConstraint(Sketcher.Constraint("Tangent", 7, 1, 0, 1))
sketch9.addConstraint(Sketcher.Constraint("Vertical", 0))
sketch9.addConstraint(Sketcher.Constraint("Horizontal", 2))
sketch9.addConstraint(Sketcher.Constraint("Vertical", 4))
sketch9.addConstraint(Sketcher.Constraint("Horizontal", 6))
sketch9.addConstraint(Sketcher.Constraint("Equal", 1, 3))
sketch9.addConstraint(Sketcher.Constraint("Equal", 3, 5))
sketch9.addConstraint(Sketcher.Constraint("Equal", 5, 7))
sketch9.addConstraint(Sketcher.Constraint("Equal", 6, 0))
sketch9.addConstraint(Sketcher.Constraint("Radius", 1, Q("1.1 in")))
sketch9.addConstraint(Sketcher.Constraint("DistanceX", 2, 2, 2, 1, Q("12 in")))
sketch9.addConstraint(Sketcher.Constraint("DistanceY", 1, 3, -1, 1, Q("298.102478 mm")))
sketch9.addConstraint(Sketcher.Constraint("DistanceX", -1, 1, 1, 3, Q("7.328473 mm")))
pad6 = doc.addObject("PartDesign::Pad", "Pad005")
body.addObject(pad6)
pad6.Profile = sketch9
pad6.Length = Q("0.5 in")
pad6.Reversed = True

# Sketch on YZ plane
sketch10 = doc.addObject("Sketcher::SketchObject", "Sketch009")
body.addObject(sketch10)
sketch10.AttachmentSupport = (doc.YZ_Plane, [""])
sketch10.MapMode = "FlatFace"
sketch10.AttachmentOffset = App.Placement(App.Vector(0, 0, -325.411527), App.Rotation())
add_polygon(sketch10, [(-652, 7), (-659, 7), (-659, -298), (-652, -298)])  # lines 0-3
sketch10.addConstraint(Sketcher.Constraint("Horizontal", 0))
sketch10.addConstraint(Sketcher.Constraint("Vertical", 1))
sketch10.addConstraint(Sketcher.Constraint("Horizontal", 2))
sketch10.addConstraint(Sketcher.Constraint("Vertical", 3))
sketch10.addConstraint(Sketcher.Constraint("DistanceY", 1, 2, 1, 1, Q("12 in")))
sketch10.addConstraint(Sketcher.Constraint("DistanceX", 0, 2, 0, 1, Q("6.578487 mm")))
sketch10.addConstraint(Sketcher.Constraint("DistanceX", 0, 2, -1, 1, Q("658.570281 mm")))
sketch10.addConstraint(Sketcher.Constraint("DistanceY", -1, 1, 0, 2, Q("6.697522 mm")))
pad7 = doc.addObject("PartDesign::Pad", "Pad006")
body.addObject(pad7)
pad7.Profile = sketch10
pad7.Type = "UpToFirst"

# Sketch on XY plane
sketch11 = doc.addObject("Sketcher::SketchObject", "Sketch010")
body.addObject(sketch11)
sketch11.AttachmentSupport = (doc.XY_Plane, [""])
sketch11.MapMode = "FlatFace"
sketch11.AttachmentOffset = App.Placement(App.Vector(0, 0, 44.797522), App.Rotation())
add_polygon(sketch11, [(-272, -7), (-272, -106), (-15, -106), (-15, -7)])  # lines 0-3
sketch11.addConstraint(Sketcher.Constraint("Vertical", 0))
sketch11.addConstraint(Sketcher.Constraint("Horizontal", 1))
sketch11.addConstraint(Sketcher.Constraint("Vertical", 2))
sketch11.addConstraint(Sketcher.Constraint("Horizontal", 3))
sketch11.addConstraint(Sketcher.Constraint("DistanceX", 1, 1, 1, 2, Q("256.98478 mm")))
sketch11.addConstraint(Sketcher.Constraint("DistanceY", 0, 2, 0, 1, Q("99.117758 mm")))
sketch11.addConstraint(Sketcher.Constraint("DistanceX", 0, 2, -1, 1, Q("272.324945 mm")))
sketch11.addConstraint(Sketcher.Constraint("DistanceY", 0, 2, -1, 1, Q("106.147976 mm")))
pocket4 = doc.addObject("PartDesign::Pocket", "Pocket003")
body.addObject(pocket4)
pocket4.Profile = sketch11
pocket4.Length = Q("2.58 in")

# Sketch on XZ plane
sketch12 = doc.addObject("Sketcher::SketchObject", "Sketch011")
body.addObject(sketch12)
sketch12.AttachmentSupport = (doc.XZ_Plane, [""])
sketch12.MapMode = "FlatFace"
sketch12.AttachmentOffset = App.Placement(App.Vector(0, 0, 498.980347), App.Rotation())
sketch12.addGeometry(Part.ArcOfCircle(Part.Circle(App.Vector(-297, 7, 0), App.Vector(0, 0, 1), 38), math.radians(135), math.radians(180)), False)
sketch12.addGeometry(Part.LineSegment(App.Vector(-324, 34, 0), App.Vector(-317, 26, 0)), False)
sketch12.addGeometry(Part.ArcOfCircle(Part.Circle(App.Vector(-297, 7, 0), App.Vector(0, 0, 1), 28), math.radians(135), math.radians(180)), False)
sketch12.addGeometry(Part.LineSegment(App.Vector(-325, 7, 0), App.Vector(-325, 0, 0)), False)
sketch12.addGeometry(Part.LineSegment(App.Vector(-325, 0, 0), App.Vector(-336, 0, 0)), False)
sketch12.addGeometry(Part.LineSegment(App.Vector(-336, 0, 0), App.Vector(-336, 7, 0)), False)
sketch12.addGeometry(Part.LineSegment(App.Vector(27, 26, 0), App.Vector(34, 34, 0)), False)
sketch12.addGeometry(Part.ArcOfCircle(Part.Circle(App.Vector(7, 7, 0), App.Vector(0, 0, 1), 38), math.radians(0), math.radians(45)), False)
sketch12.addGeometry(Part.LineSegment(App.Vector(45, 7, 0), App.Vector(45, 0, 0)), False)
sketch12.addGeometry(Part.LineSegment(App.Vector(45, 0, 0), App.Vector(35, 0, 0)), False)
sketch12.addGeometry(Part.LineSegment(App.Vector(35, 0, 0), App.Vector(35, 7, 0)), False)
sketch12.addGeometry(Part.ArcOfCircle(Part.Circle(App.Vector(7, 7, 0), App.Vector(0, 0, 1), 28), math.radians(0), math.radians(45)), False)
sketch12.addConstraint(Sketcher.Constraint("Coincident", 0, 1, 1, 1))
sketch12.addConstraint(Sketcher.Constraint("Coincident", 1, 2, 2, 1))
sketch12.addConstraint(Sketcher.Constraint("Tangent", 2, 2, 3, 1))
sketch12.addConstraint(Sketcher.Constraint("Coincident", 3, 2, 4, 1))
sketch12.addConstraint(Sketcher.Constraint("Coincident", 4, 2, 5, 1))
sketch12.addConstraint(Sketcher.Constraint("Tangent", 5, 2, 0, 2))
sketch12.addConstraint(Sketcher.Constraint("Coincident", 6, 2, 7, 2))
sketch12.addConstraint(Sketcher.Constraint("Tangent", 7, 1, 8, 1))
sketch12.addConstraint(Sketcher.Constraint("Coincident", 8, 2, 9, 1))
sketch12.addConstraint(Sketcher.Constraint("Coincident", 9, 2, 10, 1))
sketch12.addConstraint(Sketcher.Constraint("Tangent", 10, 2, 11, 1))
sketch12.addConstraint(Sketcher.Constraint("Coincident", 11, 2, 6, 1))
sketch12.addConstraint(Sketcher.Constraint("Vertical", 3))
sketch12.addConstraint(Sketcher.Constraint("Horizontal", 4))
sketch12.addConstraint(Sketcher.Constraint("Vertical", 5))
sketch12.addConstraint(Sketcher.Constraint("Vertical", 8))
sketch12.addConstraint(Sketcher.Constraint("Horizontal", 9))
sketch12.addConstraint(Sketcher.Constraint("Vertical", 10))
sketch12.addConstraint(Sketcher.Constraint("Coincident", 2, 3, 0, 3))
sketch12.addConstraint(Sketcher.Constraint("Coincident", 11, 3, 7, 3))
sketch12.addConstraint(Sketcher.Constraint("Equal", 0, 7))
sketch12.addConstraint(Sketcher.Constraint("Equal", 2, 11))
sketch12.addConstraint(Sketcher.Constraint("PointOnObject", 3, 2, -1))
sketch12.addConstraint(Sketcher.Constraint("PointOnObject", 8, 2, -1))
sketch12.addConstraint(Sketcher.Constraint("Perpendicular", 1, 6))
sketch12.addConstraint(Sketcher.Constraint("Horizontal", 2, 3, 7, 3))
sketch12.addConstraint(Sketcher.Constraint("Horizontal", 0, 1, 6, 2))
sketch12.addConstraint(Sketcher.Constraint("Horizontal", 1, 2, 11, 2))
sketch12.addConstraint(Sketcher.Constraint("Radius", 0, Q("1.5 in")))
sketch12.addConstraint(Sketcher.Constraint("Radius", 2, Q("1.1 in")))
sketch12.addConstraint(Sketcher.Constraint("DistanceX", 2, 3, 7, 3, Q("12 in")))
sketch12.addConstraint(Sketcher.Constraint("DistanceY", 3, 2, 3, 1, Q("6.697522 mm")))
sketch12.addConstraint(Sketcher.Constraint("DistanceY", -1, 1, 0, 1, Q("33.63829 mm")))
sketch12.addConstraint(Sketcher.Constraint("DistanceX", 1, 2, -1, 1, Q("317.228091 mm")))
pad8 = doc.addObject("PartDesign::Pad", "Pad007")
body.addObject(pad8)
pad8.Profile = sketch12
pad8.Length = 337.560694
pad8.Reversed = True

# Sketch on XZ plane
sketch13 = doc.addObject("Sketcher::SketchObject", "Sketch012")
body.addObject(sketch13)
sketch13.AttachmentSupport = (doc.XZ_Plane, [""])
sketch13.MapMode = "FlatFace"
sketch13.AttachmentOffset = App.Placement(App.Vector(0, 0, -1.35 * 25.4), App.Rotation())
sketch13.addGeometry(Part.LineSegment(App.Vector(-199.5, -47.9, 0), App.Vector(-199.5, -62, 0)), False)
sketch13.addGeometry(Part.ArcOfCircle(Part.Circle(App.Vector(-202.8, -62, 0), App.Vector(0, 0, 1), 3.3), math.radians(180), math.radians(360)), False)
sketch13.addGeometry(Part.LineSegment(App.Vector(-206.1, -62, 0), App.Vector(-206.1, -47.9, 0)), False)
sketch13.addGeometry(Part.ArcOfCircle(Part.Circle(App.Vector(-202.8, -47.9, 0), App.Vector(0, 0, 1), 3.3), math.radians(0), math.radians(180)), False)
sketch13.addConstraint(Sketcher.Constraint("Tangent", 0, 2, 1, 2))
sketch13.addConstraint(Sketcher.Constraint("Tangent", 1, 1, 2, 1))
sketch13.addConstraint(Sketcher.Constraint("Tangent", 2, 2, 3, 2))
sketch13.addConstraint(Sketcher.Constraint("Tangent", 3, 1, 0, 1))
sketch13.addConstraint(Sketcher.Constraint("Vertical", 0))
sketch13.addConstraint(Sketcher.Constraint("Vertical", 2))
sketch13.addConstraint(Sketcher.Constraint("Radius", 1, Q("3.285898 mm")))
sketch13.addConstraint(Sketcher.Constraint("DistanceY", 0, 2, 0, 1, Q("14.054543 mm")))
sketch13.addConstraint(Sketcher.Constraint("DistanceY", 1, 3, -1, 1, Q("61.981141 mm")))
sketch13.addConstraint(Sketcher.Constraint("DistanceX", 1, 1, -1, 1, Q("206.096942 mm")))
pad9 = doc.addObject("PartDesign::Pad", "Pad008")
body.addObject(pad9)
pad9.Profile = sketch13
pad9.Length = Q("0.22 in")
pad9.Reversed = True

doc.recompute()
